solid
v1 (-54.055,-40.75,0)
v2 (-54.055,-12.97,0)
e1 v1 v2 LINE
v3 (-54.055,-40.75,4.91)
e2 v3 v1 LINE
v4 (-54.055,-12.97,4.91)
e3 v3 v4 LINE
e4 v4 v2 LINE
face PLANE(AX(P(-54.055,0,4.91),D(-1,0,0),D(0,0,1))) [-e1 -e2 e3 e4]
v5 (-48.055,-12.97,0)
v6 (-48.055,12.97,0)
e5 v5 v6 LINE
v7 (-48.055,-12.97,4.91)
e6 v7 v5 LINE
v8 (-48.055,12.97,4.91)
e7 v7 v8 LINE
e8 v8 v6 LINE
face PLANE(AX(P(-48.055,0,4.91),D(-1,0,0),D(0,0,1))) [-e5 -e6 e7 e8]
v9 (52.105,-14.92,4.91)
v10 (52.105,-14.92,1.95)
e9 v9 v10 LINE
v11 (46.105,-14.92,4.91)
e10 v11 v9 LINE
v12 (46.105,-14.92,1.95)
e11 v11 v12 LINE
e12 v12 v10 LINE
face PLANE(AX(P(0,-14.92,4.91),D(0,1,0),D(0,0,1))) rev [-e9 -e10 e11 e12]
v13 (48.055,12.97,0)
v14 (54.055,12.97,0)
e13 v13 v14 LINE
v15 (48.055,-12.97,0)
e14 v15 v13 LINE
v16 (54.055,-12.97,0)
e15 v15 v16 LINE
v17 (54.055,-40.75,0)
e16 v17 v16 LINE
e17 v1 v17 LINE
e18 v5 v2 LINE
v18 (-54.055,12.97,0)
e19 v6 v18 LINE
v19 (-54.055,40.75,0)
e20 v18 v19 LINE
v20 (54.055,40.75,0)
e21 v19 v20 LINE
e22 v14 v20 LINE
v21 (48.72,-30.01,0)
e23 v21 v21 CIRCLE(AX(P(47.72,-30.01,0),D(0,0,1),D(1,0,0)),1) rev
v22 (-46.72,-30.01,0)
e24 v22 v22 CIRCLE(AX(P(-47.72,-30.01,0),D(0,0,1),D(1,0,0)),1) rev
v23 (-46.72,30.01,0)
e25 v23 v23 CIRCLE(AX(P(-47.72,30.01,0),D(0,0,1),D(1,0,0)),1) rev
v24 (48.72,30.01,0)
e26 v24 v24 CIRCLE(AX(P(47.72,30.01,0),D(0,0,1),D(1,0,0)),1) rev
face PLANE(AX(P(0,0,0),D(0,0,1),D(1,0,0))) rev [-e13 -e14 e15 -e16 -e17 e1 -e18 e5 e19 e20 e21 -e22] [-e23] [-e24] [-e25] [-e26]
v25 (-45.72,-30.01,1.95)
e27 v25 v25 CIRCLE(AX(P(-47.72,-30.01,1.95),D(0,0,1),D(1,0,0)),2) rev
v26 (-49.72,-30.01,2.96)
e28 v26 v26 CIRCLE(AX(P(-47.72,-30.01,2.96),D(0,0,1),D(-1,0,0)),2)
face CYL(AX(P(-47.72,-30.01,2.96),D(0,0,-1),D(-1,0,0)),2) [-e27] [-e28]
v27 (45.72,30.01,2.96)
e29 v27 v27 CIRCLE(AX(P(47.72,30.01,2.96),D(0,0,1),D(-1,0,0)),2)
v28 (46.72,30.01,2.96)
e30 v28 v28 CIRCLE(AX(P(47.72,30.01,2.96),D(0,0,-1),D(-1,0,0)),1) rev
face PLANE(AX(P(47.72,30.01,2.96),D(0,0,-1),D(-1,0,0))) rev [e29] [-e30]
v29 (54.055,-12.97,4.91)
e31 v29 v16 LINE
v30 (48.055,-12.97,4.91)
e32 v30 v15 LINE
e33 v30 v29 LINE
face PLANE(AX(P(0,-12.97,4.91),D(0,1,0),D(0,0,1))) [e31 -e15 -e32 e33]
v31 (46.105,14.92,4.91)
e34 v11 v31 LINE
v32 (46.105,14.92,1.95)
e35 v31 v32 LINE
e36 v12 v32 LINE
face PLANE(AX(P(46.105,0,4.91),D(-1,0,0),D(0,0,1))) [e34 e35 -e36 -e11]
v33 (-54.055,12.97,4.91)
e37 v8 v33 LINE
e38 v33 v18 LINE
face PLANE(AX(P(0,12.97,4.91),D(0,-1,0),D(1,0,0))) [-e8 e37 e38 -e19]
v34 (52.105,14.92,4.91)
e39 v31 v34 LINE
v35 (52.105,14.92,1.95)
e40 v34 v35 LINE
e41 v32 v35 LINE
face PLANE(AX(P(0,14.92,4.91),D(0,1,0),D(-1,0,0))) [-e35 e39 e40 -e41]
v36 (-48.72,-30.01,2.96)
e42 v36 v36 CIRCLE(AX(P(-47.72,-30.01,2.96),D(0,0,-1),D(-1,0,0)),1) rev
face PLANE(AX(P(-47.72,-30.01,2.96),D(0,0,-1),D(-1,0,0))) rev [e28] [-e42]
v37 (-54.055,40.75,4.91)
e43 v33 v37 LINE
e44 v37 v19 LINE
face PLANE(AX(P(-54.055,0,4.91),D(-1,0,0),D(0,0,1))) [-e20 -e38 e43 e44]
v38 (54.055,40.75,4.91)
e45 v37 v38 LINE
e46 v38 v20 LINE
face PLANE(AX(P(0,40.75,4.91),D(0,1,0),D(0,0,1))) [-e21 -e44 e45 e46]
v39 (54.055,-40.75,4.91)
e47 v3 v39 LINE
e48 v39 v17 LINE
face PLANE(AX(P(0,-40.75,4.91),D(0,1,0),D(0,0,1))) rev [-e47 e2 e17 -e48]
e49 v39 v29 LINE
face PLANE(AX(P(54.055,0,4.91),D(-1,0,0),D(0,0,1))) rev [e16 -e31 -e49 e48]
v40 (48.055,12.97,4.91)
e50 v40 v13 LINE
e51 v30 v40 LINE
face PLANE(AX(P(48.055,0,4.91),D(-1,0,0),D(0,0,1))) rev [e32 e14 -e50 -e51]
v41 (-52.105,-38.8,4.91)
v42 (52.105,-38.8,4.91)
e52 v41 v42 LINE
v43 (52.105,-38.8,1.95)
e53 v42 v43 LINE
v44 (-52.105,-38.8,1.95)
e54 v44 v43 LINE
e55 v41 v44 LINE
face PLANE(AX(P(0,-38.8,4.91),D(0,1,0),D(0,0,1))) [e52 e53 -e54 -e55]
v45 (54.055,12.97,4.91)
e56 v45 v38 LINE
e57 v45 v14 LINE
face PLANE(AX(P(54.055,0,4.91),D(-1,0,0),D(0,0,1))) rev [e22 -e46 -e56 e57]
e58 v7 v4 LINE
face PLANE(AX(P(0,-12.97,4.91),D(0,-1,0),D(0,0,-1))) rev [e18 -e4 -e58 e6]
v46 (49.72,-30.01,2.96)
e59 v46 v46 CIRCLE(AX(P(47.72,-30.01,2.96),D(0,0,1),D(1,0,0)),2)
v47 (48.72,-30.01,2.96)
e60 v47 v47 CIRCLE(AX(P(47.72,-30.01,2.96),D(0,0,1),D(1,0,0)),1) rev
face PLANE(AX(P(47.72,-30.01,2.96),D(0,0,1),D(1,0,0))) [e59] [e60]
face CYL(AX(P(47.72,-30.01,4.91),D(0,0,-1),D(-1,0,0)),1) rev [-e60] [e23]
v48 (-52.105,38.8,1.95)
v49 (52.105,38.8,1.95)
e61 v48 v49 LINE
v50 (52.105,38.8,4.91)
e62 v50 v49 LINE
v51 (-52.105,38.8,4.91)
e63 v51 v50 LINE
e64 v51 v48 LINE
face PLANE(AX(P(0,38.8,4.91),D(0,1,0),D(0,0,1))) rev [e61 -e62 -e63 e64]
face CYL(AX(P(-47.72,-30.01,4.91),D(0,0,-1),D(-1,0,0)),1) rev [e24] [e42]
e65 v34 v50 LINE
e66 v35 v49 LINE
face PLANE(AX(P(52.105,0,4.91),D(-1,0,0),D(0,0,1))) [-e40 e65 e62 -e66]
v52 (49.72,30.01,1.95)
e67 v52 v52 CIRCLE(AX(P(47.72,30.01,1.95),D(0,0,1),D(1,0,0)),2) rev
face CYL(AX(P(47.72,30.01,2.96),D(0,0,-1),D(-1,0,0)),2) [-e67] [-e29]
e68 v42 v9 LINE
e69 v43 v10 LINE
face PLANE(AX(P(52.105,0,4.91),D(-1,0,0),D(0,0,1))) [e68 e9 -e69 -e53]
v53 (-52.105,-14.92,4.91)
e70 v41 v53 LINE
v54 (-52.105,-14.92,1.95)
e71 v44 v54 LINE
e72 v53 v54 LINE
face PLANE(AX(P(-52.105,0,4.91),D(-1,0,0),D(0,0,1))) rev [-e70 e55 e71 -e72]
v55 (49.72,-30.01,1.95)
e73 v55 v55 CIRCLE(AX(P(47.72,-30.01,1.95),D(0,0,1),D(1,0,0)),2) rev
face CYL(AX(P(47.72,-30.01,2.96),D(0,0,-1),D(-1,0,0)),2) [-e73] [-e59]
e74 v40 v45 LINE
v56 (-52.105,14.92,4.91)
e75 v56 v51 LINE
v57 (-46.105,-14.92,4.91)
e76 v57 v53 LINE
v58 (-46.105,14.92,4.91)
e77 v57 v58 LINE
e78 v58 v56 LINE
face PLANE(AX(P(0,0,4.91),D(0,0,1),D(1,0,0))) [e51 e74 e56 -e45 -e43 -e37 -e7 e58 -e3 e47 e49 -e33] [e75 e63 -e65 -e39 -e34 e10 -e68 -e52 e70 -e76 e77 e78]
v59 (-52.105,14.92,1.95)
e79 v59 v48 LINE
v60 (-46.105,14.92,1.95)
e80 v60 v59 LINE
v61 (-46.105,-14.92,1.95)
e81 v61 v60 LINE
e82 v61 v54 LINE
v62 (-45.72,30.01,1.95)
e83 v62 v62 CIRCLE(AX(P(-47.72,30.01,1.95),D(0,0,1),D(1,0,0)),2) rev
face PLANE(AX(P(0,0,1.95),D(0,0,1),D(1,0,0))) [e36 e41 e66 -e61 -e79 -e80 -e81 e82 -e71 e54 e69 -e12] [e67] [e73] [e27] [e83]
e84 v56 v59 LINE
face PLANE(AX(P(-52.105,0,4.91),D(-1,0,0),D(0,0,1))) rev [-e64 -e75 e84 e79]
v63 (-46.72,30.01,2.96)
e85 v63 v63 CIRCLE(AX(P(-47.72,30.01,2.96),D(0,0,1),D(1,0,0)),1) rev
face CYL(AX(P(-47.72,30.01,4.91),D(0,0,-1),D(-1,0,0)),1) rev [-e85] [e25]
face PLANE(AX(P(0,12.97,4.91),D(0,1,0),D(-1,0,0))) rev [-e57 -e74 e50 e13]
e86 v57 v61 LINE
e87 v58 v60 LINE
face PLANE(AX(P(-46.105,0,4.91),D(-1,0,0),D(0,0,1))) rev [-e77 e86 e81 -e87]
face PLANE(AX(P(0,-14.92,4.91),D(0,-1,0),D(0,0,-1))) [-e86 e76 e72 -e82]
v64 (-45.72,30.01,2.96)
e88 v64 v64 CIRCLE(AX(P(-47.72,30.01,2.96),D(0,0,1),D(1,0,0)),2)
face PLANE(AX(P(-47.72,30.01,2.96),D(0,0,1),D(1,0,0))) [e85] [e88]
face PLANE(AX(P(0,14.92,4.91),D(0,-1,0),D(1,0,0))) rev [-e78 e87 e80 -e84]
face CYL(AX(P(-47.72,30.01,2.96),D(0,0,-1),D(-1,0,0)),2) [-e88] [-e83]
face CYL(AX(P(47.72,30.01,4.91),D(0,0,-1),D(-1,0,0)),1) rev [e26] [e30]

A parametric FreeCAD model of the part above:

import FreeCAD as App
import Part
import Sketcher
Q = App.Units.Quantity


def faces_at(feature, points):
    """Names of the faces that lie closest to the given points."""
    faces = feature.Shape.Faces
    near = lambda p: min(range(len(faces)), key=lambda i: faces[i].distToShape(Part.Vertex(*p))[0])
    return sorted({f"Face{near(p) + 1}" for p in points})

doc = App.newDocument("Part")
body = doc.addObject("PartDesign::Body", "Body")

sketch1 = body.newObject("Sketcher::SketchObject", "Sketch")
sketch1.AttachmentSupport = (doc.getObject("XY_Plane"), [""])
sketch1.MapMode = "FlatFace"
sketch1.addGeometry([
    Part.LineSegment(App.Vector(-54.055, -12.97, 0), App.Vector(-54.055, -40.75, 0)),
    Part.LineSegment(App.Vector(-54.055, -40.75, 0), App.Vector(54.055, -40.75, 0)),
    Part.LineSegment(App.Vector(54.055, -40.75, 0), App.Vector(54.055, -12.97, 0)),
    Part.LineSegment(App.Vector(54.055, -12.97, 0), App.Vector(48.055, -12.97, 0)),
    Part.LineSegment(App.Vector(48.055, -12.97, 0), App.Vector(48.055, 12.97, 0)),
    Part.LineSegment(App.Vector(48.055, 12.97, 0), App.Vector(54.055, 12.97, 0)),
    Part.LineSegment(App.Vector(54.055, 12.97, 0), App.Vector(54.055, 40.75, 0)),
    Part.LineSegment(App.Vector(54.055, 40.75, 0), App.Vector(-54.055, 40.75, 0)),
    Part.LineSegment(App.Vector(-54.055, 40.75, 0), App.Vector(-54.055, 12.97, 0)),
    Part.LineSegment(App.Vector(-54.055, 12.97, 0), App.Vector(-48.055, 12.97, 0)),
    Part.LineSegment(App.Vector(-48.055, 12.97, 0), App.Vector(-48.055, -12.97, 0)),
    Part.LineSegment(App.Vector(-48.055, -12.97, 0), App.Vector(-54.055, -12.97, 0)),
], False)
sketch1.addConstraint([
    Sketcher.Constraint("Coincident", 0, 2, 1, 1),
    Sketcher.Constraint("Coincident", 1, 2, 2, 1),
    Sketcher.Constraint("Coincident", 2, 2, 3, 1),
    Sketcher.Constraint("Coincident", 3, 2, 4, 1),
    Sketcher.Constraint("Coincident", 4, 2, 5, 1),
    Sketcher.Constraint("Coincident", 5, 2, 6, 1),
    Sketcher.Constraint("Coincident", 6, 2, 7, 1),
    Sketcher.Constraint("Coincident", 7, 2, 8, 1),
    Sketcher.Constraint("Coincident", 8, 2, 9, 1),
    Sketcher.Constraint("Coincident", 9, 2, 10, 1),
    Sketcher.Constraint("Coincident", 10, 2, 11, 1),
    Sketcher.Constraint("Coincident", 11, 2, 0, 1),
    Sketcher.Constraint("Vertical", 0),
    Sketcher.Constraint("Horizontal", 1),
    Sketcher.Constraint("Vertical", 2),
    Sketcher.Constraint("Horizontal", 3),
    Sketcher.Constraint("Vertical", 4),
    Sketcher.Constraint("Horizontal", 5),
    Sketcher.Constraint("Vertical", 6),
    Sketcher.Constraint("Horizontal", 7),
    Sketcher.Constraint("Vertical", 8),
    Sketcher.Constraint("Horizontal", 9),
    Sketcher.Constraint("Vertical", 10),
    Sketcher.Constraint("Horizontal", 11),
    Sketcher.Constraint("Symmetric", 0, 2, 6, 2, -1, 1),
    Sketcher.Constraint("Symmetric", 2, 2, 8, 2, -1, 1),
    Sketcher.Constraint("Symmetric", 4, 2, 10, 2, -1, 1),
    Sketcher.Constraint("Symmetric", 5, 2, 8, 2, -2),
    Sketcher.Constraint("DistanceX", 3, 2, 3, 1, Q("6 mm")),
    Sketcher.Constraint("DistanceX", 1, 1, 1, 2, Q("108.11 mm")),
    Sketcher.Constraint("DistanceY", 0, 2, 0, 1, Q("27.78 mm")),
    Sketcher.Constraint("DistanceY", 4, 1, 4, 2, Q("25.94 mm")),
])
pad1 = body.newObject("PartDesign::Pad", "Pad")
pad1.Profile = sketch1
pad1.Length = 4.91
doc.recompute()

thickness = body.newObject("PartDesign::Thickness", "Thickness")
thickness.Base = (pad1, faces_at(pad1, [(0, 0, 4.91)]))
thickness.Value = 1.95
thickness.Reversed = True
thickness.Join = "Intersection"

sketch2 = body.newObject("Sketcher::SketchObject", "Sketch001")
sketch2.AttachmentSupport = (doc.getObject("XY_Plane"), [""])
sketch2.MapMode = "FlatFace"
sketch2.addGeometry([
    Part.Circle(App.Vector(-47.72, 30.01, 0), App.Vector(0, 0, 1), 2),
    Part.Circle(App.Vector(47.72, 30.01, 0), App.Vector(0, 0, 1), 2),
    Part.Circle(App.Vector(47.72, -30.01, 0), App.Vector(0, 0, 1), 2),
    Part.Circle(App.Vector(-47.72, -30.01, 0), App.Vector(0, 0, 1), 2),
], False)
sketch2.addConstraint([
    Sketcher.Constraint("Equal", 0, 1),
    Sketcher.Constraint("Equal", 1, 2),
    Sketcher.Constraint("Equal", 2, 3),
    Sketcher.Constraint("Symmetric", 0, 3, 2, 3, -1, 1),
    Sketcher.Constraint("Symmetric", 1, 3, 3, 3, -1, 1),
    Sketcher.Constraint("Symmetric", 0, 3, 1, 3, -2),
    Sketcher.Constraint("Diameter", 0, Q("4 mm")),
    Sketcher.Constraint("DistanceX", 0, 3, -1, 1, Q("47.72 mm")),
    Sketcher.Constraint("DistanceY", -1, 1, 0, 3, Q("30.01 mm")),
])
pad2 = body.newObject("PartDesign::Pad", "Pad001")
pad2.Profile = sketch2
pad2.Length = 2.96

sketch3 = body.newObject("Sketcher::SketchObject", "Sketch002")
sketch3.AttachmentSupport = (doc.getObject("XY_Plane"), [""])
sketch3.MapMode = "FlatFace"
sketch3.addGeometry([
    Part.Circle(App.Vector(-47.72, 30.01, 0), App.Vector(0, 0, 1), 1),
    Part.Circle(App.Vector(47.72, 30.01, 0), App.Vector(0, 0, 1), 1),
    Part.Circle(App.Vector(47.72, -30.01, 0), App.Vector(0, 0, 1), 1),
    Part.Circle(App.Vector(-47.72, -30.01, 0), App.Vector(0, 0, 1), 1),
], False)
sketch3.addConstraint([
    Sketcher.Constraint("Equal", 0, 1),
    Sketcher.Constraint("Equal", 1, 2),
    Sketcher.Constraint("Equal", 2, 3),
    Sketcher.Constraint("Symmetric", 0, 3, 2, 3, -1, 1),
    Sketcher.Constraint("Symmetric", 1, 3, 3, 3, -1, 1),
    Sketcher.Constraint("Symmetric", 0, 3, 1, 3, -2),
    Sketcher.Constraint("Diameter", 0, Q("2 mm")),
    Sketcher.Constraint("DistanceX", 0, 3, -1, 1, Q("47.72 mm")),
    Sketcher.Constraint("DistanceY", -1, 1, 0, 3, Q("30.01 mm")),
])
pocket1 = body.newObject("PartDesign::Pocket", "Pocket")
pocket1.Profile = sketch3
pocket1.Type = "ThroughAll"
pocket1.Midplane = True

doc.recompute()
